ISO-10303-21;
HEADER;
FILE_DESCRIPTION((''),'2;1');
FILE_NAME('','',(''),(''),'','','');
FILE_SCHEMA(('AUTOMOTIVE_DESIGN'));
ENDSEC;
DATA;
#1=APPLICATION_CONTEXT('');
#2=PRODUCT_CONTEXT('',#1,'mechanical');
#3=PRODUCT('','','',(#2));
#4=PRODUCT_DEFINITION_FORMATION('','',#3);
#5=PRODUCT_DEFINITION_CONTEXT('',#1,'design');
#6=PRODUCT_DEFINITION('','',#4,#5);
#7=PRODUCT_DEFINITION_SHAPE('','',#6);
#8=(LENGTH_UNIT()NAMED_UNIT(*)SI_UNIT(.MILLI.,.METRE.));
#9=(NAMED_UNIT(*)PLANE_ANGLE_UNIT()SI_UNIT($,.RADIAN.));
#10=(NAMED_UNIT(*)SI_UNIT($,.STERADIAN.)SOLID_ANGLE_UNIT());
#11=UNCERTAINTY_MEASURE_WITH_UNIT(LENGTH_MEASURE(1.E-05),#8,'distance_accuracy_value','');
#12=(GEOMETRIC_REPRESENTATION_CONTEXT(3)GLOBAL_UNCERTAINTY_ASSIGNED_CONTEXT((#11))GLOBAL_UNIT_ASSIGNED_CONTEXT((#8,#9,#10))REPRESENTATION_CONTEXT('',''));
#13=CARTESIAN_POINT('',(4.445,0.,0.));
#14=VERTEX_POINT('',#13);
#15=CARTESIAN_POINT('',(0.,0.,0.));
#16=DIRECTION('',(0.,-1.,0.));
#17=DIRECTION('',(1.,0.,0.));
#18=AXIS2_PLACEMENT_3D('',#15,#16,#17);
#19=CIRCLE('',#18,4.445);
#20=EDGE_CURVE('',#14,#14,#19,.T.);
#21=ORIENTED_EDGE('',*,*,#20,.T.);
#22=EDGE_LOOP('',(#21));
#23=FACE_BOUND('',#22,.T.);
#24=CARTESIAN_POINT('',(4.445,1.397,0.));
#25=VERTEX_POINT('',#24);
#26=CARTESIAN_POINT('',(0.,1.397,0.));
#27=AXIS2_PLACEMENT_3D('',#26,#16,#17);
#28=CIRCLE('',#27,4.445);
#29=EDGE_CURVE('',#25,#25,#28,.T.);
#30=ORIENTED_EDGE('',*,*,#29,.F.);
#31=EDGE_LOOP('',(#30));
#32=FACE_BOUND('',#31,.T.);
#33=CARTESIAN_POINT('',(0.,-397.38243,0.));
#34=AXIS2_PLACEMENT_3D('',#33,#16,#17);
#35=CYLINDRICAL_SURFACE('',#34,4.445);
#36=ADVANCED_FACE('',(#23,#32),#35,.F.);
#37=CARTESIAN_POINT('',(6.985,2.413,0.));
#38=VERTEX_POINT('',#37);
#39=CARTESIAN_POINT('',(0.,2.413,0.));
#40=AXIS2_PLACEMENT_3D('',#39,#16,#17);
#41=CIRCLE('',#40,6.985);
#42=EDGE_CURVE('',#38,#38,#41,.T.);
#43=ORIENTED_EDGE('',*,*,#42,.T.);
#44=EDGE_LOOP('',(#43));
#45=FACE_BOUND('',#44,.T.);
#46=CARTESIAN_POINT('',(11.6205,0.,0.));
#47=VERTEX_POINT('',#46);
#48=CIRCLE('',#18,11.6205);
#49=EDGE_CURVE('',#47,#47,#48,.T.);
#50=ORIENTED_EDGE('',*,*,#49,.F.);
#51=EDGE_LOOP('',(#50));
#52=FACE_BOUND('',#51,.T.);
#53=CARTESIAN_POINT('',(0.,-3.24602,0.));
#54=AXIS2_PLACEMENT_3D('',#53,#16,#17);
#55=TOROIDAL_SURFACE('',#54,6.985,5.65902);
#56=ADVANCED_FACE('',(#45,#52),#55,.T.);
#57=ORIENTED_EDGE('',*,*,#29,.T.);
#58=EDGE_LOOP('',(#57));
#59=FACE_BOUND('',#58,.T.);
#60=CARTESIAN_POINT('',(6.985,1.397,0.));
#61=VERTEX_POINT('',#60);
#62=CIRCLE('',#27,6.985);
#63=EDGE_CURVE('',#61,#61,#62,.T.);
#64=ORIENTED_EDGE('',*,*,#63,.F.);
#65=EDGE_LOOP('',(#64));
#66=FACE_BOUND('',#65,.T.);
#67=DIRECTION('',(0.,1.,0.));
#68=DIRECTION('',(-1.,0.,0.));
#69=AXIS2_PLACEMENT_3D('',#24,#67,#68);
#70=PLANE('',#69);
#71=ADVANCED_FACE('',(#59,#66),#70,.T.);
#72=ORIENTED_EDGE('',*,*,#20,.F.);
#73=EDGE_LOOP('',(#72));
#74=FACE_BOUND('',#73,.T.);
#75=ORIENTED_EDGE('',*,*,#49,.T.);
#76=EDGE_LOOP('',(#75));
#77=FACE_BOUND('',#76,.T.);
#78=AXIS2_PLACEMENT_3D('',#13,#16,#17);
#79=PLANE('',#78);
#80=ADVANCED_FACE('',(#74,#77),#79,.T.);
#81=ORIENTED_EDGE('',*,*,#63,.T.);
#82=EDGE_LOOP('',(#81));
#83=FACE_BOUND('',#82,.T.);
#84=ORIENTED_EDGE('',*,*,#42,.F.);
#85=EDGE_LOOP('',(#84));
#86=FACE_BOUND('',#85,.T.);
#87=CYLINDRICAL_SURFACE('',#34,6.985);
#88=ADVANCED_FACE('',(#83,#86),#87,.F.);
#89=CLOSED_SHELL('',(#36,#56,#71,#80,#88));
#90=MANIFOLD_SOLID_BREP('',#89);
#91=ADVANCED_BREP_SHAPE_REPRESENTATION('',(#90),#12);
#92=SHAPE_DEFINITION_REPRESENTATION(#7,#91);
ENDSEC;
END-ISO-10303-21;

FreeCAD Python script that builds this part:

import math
import FreeCAD as App
import Part
import Sketcher
from FreeCAD import Vector
Q = App.Units.Quantity

doc = App.newDocument("Part")
params = doc.addObject("Spreadsheet::Sheet", "Params")
for row, (alias, value) in enumerate([
    ("sketch1_width", "0.1 in"),
    ("sketch1_height", "0.04 in"),
    ("sketch1_height2", "0.055 in"),
    ("revolution_angle", "360 deg"),
], start=1):
    params.set(f"A{row}", alias)
    params.set(f"B{row}", "=" + value)
    params.setAlias(f"B{row}", alias)

body = doc.addObject("PartDesign::Body", "Body")

# Sketch on XY plane
sketch1 = doc.addObject("Sketcher::SketchObject", "Sketch")
body.addObject(sketch1)
sketch1.AttachmentSupport = (doc.XY_Plane, [""])
sketch1.MapMode = "FlatFace"
sketch1.addGeometry([
    Part.LineSegment(Vector(4.4, 0, 0), Vector(11.6, 0, 0)),  # 0
    Part.ArcOfCircle(Part.Circle(Vector(7, -3.2, 0), Vector(0, 0, 1), 5.7), math.radians(35), math.radians(90)),  # 1
    Part.LineSegment(Vector(7, 2.4, 0), Vector(7, 1.4, 0)),  # 2
    Part.LineSegment(Vector(7, 1.4, 0), Vector(4.4, 1.4, 0)),  # 3
    Part.LineSegment(Vector(4.4, 1.4, 0), Vector(4.4, 0, 0)),  # 4
], False)
sketch1.addConstraint([
    Sketcher.Constraint("Coincident", 0, 2, 1, 1),
    Sketcher.Constraint("Coincident", 1, 2, 2, 1),
    Sketcher.Constraint("Coincident", 2, 2, 3, 1),
    Sketcher.Constraint("Coincident", 3, 2, 4, 1),
    Sketcher.Constraint("Coincident", 4, 2, 0, 1),
    Sketcher.Constraint("Horizontal", 0),
    Sketcher.Constraint("Vertical", 2),
    Sketcher.Constraint("Horizontal", 3),
    Sketcher.Constraint("Vertical", 4),
    Sketcher.Constraint("PointOnObject", 0, 2, -1),
    Sketcher.Constraint("DistanceX", 3, 2, 3, 1, Q("0.1 in")),
    Sketcher.Constraint("DistanceY", 2, 2, 2, 1, Q("0.04 in")),
    Sketcher.Constraint("DistanceX", 3, 2, 1, 3, Q("0.1 in")),
    Sketcher.Constraint("DistanceY", 4, 2, 4, 1, Q("0.055 in")),
    Sketcher.Constraint("DistanceX", 0, 1, 0, 2, Q("0.2825 in")),
    Sketcher.Constraint("DistanceX", -1, 1, 1, 3, Q("0.275 in")),
])
sketch1.setExpression("Constraints[10]", "Params.sketch1_width")
sketch1.setExpression("Constraints[11]", "Params.sketch1_height")
sketch1.setExpression("Constraints[13]", "Params.sketch1_height2")
revolution = doc.addObject("PartDesign::Revolution", "Revolution")
body.addObject(revolution)
revolution.Profile = sketch1
revolution.ReferenceAxis = (sketch1, ["V_Axis"])
revolution.setExpression("Angle", "Params.revolution_angle")

doc.recompute()
